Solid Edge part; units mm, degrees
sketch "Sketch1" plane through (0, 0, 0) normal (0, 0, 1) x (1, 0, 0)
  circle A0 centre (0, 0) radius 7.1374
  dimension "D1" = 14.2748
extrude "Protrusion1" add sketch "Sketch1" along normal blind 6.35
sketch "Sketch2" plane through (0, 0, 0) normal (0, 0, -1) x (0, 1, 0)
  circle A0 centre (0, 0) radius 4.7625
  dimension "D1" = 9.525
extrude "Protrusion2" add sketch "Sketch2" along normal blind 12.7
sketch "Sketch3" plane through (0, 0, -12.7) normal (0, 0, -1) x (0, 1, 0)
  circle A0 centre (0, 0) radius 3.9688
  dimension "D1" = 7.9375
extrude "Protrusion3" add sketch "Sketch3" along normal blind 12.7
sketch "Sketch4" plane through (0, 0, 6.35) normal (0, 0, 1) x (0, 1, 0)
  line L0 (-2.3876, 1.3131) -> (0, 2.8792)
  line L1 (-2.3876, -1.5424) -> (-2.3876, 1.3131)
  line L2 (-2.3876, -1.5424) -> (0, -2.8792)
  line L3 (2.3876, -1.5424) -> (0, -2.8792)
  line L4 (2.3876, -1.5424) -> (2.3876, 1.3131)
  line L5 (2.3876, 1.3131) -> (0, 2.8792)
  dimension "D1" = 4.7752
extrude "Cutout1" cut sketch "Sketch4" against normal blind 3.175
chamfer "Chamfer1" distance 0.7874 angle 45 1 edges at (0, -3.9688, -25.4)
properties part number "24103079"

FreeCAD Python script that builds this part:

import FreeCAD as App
import Part
import Sketcher
from FreeCAD import Vector
Q = App.Units.Quantity


def edges_at(feature, points):
    """Names of the edges that pass closest to the given points."""
    edges = feature.Shape.Edges
    near = lambda p: min(range(len(edges)), key=lambda i: edges[i].distToShape(Part.Vertex(*p))[0])
    return sorted({f"Edge{near(p) + 1}" for p in points})


def add_polygon(sketch, points):
    """Adds a closed chain of lines whose ends are joined by coincident constraints."""
    first, n = sketch.GeometryCount, len(points)
    for a, b in zip(points, points[1:] + points[:1]):
        sketch.addGeometry(Part.LineSegment(App.Vector(*a, 0), App.Vector(*b, 0)), False)
    for i in range(n):
        sketch.addConstraint(Sketcher.Constraint("Coincident", first + i, 2, first + (i + 1) % n, 1))

doc = App.newDocument("Part")
body = doc.addObject("PartDesign::Body", "Body")

sketch1 = body.newObject("Sketcher::SketchObject", "Sketch")
sketch1.AttachmentSupport = (doc.getObject("XY_Plane"), [""])
sketch1.MapMode = "FlatFace"
sketch1.addGeometry(Part.Circle(Vector(0, 0, 0), Vector(0, 0, 1), 7), False)
sketch1.addConstraint([
    Sketcher.Constraint("Coincident", 0, 3, -1, 1),
    Sketcher.Constraint("Diameter", 0, Q("0.562 in")),
])
pad1 = body.newObject("PartDesign::Pad", "Pad")
pad1.Profile = sketch1
pad1.Length = Q("0.25 in")

sketch2 = body.newObject("Sketcher::SketchObject", "Sketch001")
sketch2.AttachmentSupport = (doc.getObject("XY_Plane"), [""])
sketch2.MapMode = "FlatFace"
sketch2.addGeometry(Part.Circle(Vector(0, 0, 0), Vector(0, 0, 1), 4.8), False)
sketch2.addConstraint([
    Sketcher.Constraint("Coincident", 0, 3, -1, 1),
    Sketcher.Constraint("Diameter", 0, Q("0.375 in")),
])
pad2 = body.newObject("PartDesign::Pad", "Pad001")
pad2.Profile = sketch2
pad2.Length = Q("0.5 in")
pad2.Reversed = True

sketch3 = body.newObject("Sketcher::SketchObject", "Sketch002")
sketch3.AttachmentSupport = (doc.getObject("XY_Plane"), [""])
sketch3.MapMode = "FlatFace"
sketch3.AttachmentOffset = App.Placement(Vector(0, 0, -0.5 * 25.4), App.Rotation())
sketch3.addGeometry(Part.Circle(Vector(0, 0, 0), Vector(0, 0, 1), 4), False)
sketch3.addConstraint([
    Sketcher.Constraint("Coincident", 0, 3, -1, 1),
    Sketcher.Constraint("Diameter", 0, Q("0.3125 in")),
])
pad3 = body.newObject("PartDesign::Pad", "Pad002")
pad3.Profile = sketch3
pad3.Length = Q("0.5 in")
pad3.Reversed = True

sketch4 = body.newObject("Sketcher::SketchObject", "Sketch003")
sketch4.AttachmentSupport = (doc.getObject("XY_Plane"), [""])
sketch4.MapMode = "FlatFace"
sketch4.AttachmentOffset = App.Placement(Vector(0, 0, 0.25 * 25.4), App.Rotation())
add_polygon(sketch4, [(-2.9, 0), (-1.3, -2.4), (1.5, -2.4), (2.9, 0), (1.5, 2.4), (-1.3, 2.4)])
sketch4.addConstraint([
    Sketcher.Constraint("Horizontal", 1),
    Sketcher.Constraint("Horizontal", 4),
    Sketcher.Constraint("Symmetric", 2, 2, 5, 2, -1, 1),
    Sketcher.Constraint("Symmetric", 1, 2, 3, 2, -1),
    Sketcher.Constraint("PointOnObject", 2, 2, -1),
    Sketcher.Constraint("Vertical", 0, 2, 4, 2),
    Sketcher.Constraint("DistanceY", 0, 2, -1, 1, Q("0.094 in")),
    Sketcher.Constraint("DistanceX", 1, 1, 1, 2, Q("2.8555 mm")),
    Sketcher.Constraint("DistanceX", 0, 2, -1, 1, Q("0.0517 in")),
    Sketcher.Constraint("DistanceX", 5, 2, 2, 2, Q("0.2267 in")),
])
pocket1 = body.newObject("PartDesign::Pocket", "Pocket")
pocket1.Profile = sketch4
pocket1.Length = Q("0.125 in")
doc.recompute()

chamfer = body.newObject("PartDesign::Chamfer", "Chamfer")
chamfer.Base = (pocket1, edges_at(pocket1, [(0, -3.969, -25.4)]))
chamfer.Size = Q("0.031 in")

doc.recompute()
